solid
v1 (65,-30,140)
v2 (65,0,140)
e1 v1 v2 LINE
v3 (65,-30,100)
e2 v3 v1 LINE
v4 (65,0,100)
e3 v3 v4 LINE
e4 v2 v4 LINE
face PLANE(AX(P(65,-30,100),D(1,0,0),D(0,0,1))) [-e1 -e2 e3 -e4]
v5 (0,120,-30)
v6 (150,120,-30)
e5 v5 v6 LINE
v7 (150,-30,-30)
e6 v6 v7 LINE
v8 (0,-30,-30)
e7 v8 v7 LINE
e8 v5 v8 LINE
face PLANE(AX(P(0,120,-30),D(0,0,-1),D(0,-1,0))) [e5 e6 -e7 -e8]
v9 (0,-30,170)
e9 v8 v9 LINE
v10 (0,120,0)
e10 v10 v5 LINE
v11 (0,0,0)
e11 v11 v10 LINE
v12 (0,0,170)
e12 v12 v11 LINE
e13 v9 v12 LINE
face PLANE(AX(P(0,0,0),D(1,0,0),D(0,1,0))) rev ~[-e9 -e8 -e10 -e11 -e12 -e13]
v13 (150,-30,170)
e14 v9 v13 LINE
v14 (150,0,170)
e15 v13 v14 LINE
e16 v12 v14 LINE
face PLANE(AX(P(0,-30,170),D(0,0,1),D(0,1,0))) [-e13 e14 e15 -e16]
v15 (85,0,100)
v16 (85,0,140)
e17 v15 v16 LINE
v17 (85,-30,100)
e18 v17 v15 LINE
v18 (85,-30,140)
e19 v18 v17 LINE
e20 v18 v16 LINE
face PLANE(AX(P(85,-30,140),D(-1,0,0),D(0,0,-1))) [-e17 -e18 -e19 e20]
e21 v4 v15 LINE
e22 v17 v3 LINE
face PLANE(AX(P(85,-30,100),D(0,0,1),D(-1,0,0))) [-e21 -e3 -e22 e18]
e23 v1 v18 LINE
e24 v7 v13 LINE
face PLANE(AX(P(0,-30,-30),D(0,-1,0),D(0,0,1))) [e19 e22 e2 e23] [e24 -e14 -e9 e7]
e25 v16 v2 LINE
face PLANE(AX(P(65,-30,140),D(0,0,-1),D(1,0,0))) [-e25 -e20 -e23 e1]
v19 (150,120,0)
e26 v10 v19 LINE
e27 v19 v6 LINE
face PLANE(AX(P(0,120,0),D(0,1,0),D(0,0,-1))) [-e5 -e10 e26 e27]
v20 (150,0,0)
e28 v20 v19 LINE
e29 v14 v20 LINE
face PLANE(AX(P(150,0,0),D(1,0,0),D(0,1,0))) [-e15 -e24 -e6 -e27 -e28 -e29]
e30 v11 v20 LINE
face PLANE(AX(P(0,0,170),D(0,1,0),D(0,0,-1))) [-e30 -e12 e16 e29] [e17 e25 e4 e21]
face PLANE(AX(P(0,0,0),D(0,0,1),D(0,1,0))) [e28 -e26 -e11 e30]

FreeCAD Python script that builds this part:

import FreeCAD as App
import Part
import Sketcher
from FreeCAD import Vector


def add_polygon(sketch, points):
    """Adds a closed chain of lines whose ends are joined by coincident constraints."""
    first, n = sketch.GeometryCount, len(points)
    for a, b in zip(points, points[1:] + points[:1]):
        sketch.addGeometry(Part.LineSegment(App.Vector(*a, 0), App.Vector(*b, 0)), False)
    for i in range(n):
        sketch.addConstraint(Sketcher.Constraint("Coincident", first + i, 2, first + (i + 1) % n, 1))

doc = App.newDocument("Part")
body = doc.addObject("PartDesign::Body", "Body")

# Sketch on YZ plane
sketch1 = doc.addObject("Sketcher::SketchObject", "Sketch")
body.addObject(sketch1)
sketch1.AttachmentSupport = (doc.YZ_Plane, [""])
sketch1.MapMode = "FlatFace"
add_polygon(sketch1, [(120, 0), (0, 0), (0, 170), (-30, 170), (-30, -30), (120, -30)])  # lines 0-5
sketch1.addConstraint([
    Sketcher.Constraint("Horizontal", 0),
    Sketcher.Constraint("Vertical", 1),
    Sketcher.Constraint("Horizontal", 2),
    Sketcher.Constraint("Vertical", 3),
    Sketcher.Constraint("Horizontal", 4),
    Sketcher.Constraint("Vertical", 5),
    Sketcher.Constraint("Coincident", 0, 2, -1, 1),
    Sketcher.Constraint("Equal", 2, 5),
    Sketcher.Constraint("DistanceX", 2, 2, 2, 1, 30.0),
    Sketcher.Constraint("DistanceX", 4, 1, 4, 2, 150.0),
    Sketcher.Constraint("DistanceY", 3, 2, 3, 1, 200.0),
])
pad1 = doc.addObject("PartDesign::Pad", "Pad")
body.addObject(pad1)
pad1.Profile = sketch1
pad1.Length = 150

# Sketch on XZ plane
sketch2 = doc.addObject("Sketcher::SketchObject", "Sketch001")
body.addObject(sketch2)
sketch2.AttachmentSupport = (doc.XZ_Plane, [""])
sketch2.MapMode = "FlatFace"
sketch2.AttachmentOffset = App.Placement(Vector(0, 0, 30), App.Rotation())
add_polygon(sketch2, [(85, 140), (65, 140), (65, 100), (85, 100)])  # lines 0-3
sketch2.addConstraint([
    Sketcher.Constraint("Horizontal", 0),
    Sketcher.Constraint("Vertical", 1),
    Sketcher.Constraint("Horizontal", 2),
    Sketcher.Constraint("Vertical", 3),
    Sketcher.Constraint("DistanceX", 0, 2, 0, 1, 20.0),
    Sketcher.Constraint("DistanceY", 1, 2, 1, 1, 40.0),
    Sketcher.Constraint("DistanceX", -1, 1, 0, 2, 65.0),
    Sketcher.Constraint("DistanceY", -1, 1, 0, 2, 140.0),
])
pocket1 = doc.addObject("PartDesign::Pocket", "Pocket")
body.addObject(pocket1)
pocket1.Profile = sketch2
pocket1.Type = "ThroughAll"

doc.recompute()
